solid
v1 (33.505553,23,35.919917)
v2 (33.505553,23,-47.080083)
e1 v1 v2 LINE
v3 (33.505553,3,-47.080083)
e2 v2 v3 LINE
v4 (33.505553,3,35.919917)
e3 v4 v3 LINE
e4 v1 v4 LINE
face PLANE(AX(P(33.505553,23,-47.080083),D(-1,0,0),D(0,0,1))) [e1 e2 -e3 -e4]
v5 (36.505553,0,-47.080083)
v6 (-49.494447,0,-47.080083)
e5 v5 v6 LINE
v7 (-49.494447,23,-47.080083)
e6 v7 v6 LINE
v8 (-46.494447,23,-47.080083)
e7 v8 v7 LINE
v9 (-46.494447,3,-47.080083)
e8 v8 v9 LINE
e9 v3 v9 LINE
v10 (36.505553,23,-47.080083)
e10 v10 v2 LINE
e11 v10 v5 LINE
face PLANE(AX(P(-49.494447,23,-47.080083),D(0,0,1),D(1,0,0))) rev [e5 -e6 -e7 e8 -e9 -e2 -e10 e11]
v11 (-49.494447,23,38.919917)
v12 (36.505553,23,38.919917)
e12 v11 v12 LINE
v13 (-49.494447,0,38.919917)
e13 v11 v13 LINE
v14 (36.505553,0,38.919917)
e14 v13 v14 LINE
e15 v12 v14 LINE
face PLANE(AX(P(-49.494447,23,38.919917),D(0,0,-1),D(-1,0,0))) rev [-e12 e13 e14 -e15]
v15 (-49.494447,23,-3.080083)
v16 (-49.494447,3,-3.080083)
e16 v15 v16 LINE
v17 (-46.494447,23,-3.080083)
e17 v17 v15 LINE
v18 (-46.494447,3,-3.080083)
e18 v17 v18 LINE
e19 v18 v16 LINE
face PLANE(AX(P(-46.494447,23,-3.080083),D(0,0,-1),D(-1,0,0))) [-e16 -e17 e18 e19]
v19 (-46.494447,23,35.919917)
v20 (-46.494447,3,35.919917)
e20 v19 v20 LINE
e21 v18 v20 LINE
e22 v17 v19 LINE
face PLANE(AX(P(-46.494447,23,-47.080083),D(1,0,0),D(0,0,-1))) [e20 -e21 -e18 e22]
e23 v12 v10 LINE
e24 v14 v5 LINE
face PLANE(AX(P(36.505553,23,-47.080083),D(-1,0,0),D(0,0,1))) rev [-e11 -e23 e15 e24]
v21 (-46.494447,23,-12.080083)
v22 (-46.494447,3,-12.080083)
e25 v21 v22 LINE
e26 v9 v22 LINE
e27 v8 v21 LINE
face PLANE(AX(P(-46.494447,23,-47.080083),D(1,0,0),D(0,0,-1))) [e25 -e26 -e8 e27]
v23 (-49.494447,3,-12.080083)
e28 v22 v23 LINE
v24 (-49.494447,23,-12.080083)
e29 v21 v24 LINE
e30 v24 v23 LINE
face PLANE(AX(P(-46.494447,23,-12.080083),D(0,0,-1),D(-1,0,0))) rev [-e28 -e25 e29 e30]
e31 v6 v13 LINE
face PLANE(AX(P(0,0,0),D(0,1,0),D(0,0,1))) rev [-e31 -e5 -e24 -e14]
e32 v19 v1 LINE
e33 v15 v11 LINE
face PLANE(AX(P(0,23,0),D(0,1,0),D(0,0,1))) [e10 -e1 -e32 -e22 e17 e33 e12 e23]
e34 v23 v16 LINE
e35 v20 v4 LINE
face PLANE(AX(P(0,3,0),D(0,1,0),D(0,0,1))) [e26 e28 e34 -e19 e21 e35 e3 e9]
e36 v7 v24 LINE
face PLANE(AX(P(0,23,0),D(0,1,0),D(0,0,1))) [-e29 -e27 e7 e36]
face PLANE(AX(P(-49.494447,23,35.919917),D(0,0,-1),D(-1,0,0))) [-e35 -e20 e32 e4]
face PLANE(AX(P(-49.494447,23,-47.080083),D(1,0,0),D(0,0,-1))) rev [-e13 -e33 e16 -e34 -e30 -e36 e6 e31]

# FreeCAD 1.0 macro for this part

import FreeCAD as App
import Part
import Sketcher
from FreeCAD import Vector
Q = App.Units.Quantity


def faces_at(feature, points):
    """Names of the faces that lie closest to the given points."""
    faces = feature.Shape.Faces
    near = lambda p: min(range(len(faces)), key=lambda i: faces[i].distToShape(Part.Vertex(*p))[0])
    return sorted({f"Face{near(p) + 1}" for p in points})


def add_polygon(sketch, points):
    """Adds a closed chain of lines whose ends are joined by coincident constraints."""
    first, n = sketch.GeometryCount, len(points)
    for a, b in zip(points, points[1:] + points[:1]):
        sketch.addGeometry(Part.LineSegment(App.Vector(*a, 0), App.Vector(*b, 0)), False)
    for i in range(n):
        sketch.addConstraint(Sketcher.Constraint("Coincident", first + i, 2, first + (i + 1) % n, 1))

doc = App.newDocument("Part")
params = doc.addObject("Spreadsheet::Sheet", "Params")
for row, (alias, value) in enumerate([
    ("sketch1_width", "86 mm"),
    ("pad1_length", "23 mm"),
    ("thickness_wall", "3 mm"),
    ("sketch2_width", "20 mm"),
    ("sketch2_height", "9 mm"),
    ("pocket1_length", "3 mm"),
], start=1):
    params.set(f"A{row}", alias)
    params.set(f"B{row}", "=" + value)
    params.setAlias(f"B{row}", alias)

body = doc.addObject("PartDesign::Body", "Body")

# Sketch on XZ plane
sketch1 = body.newObject("Sketcher::SketchObject", "Sketch")
sketch1.AttachmentSupport = (doc.getObject("XZ_Plane"), [""])
sketch1.MapMode = "FlatFace"
add_polygon(sketch1, [(-49.494447, -47.080083), (-49.494447, 38.919917), (36.505553, 38.919917), (36.505553, -47.080083)])  # lines 0-3
sketch1.addConstraint([
    Sketcher.Constraint("Vertical", 0),
    Sketcher.Constraint("Horizontal", 1),
    Sketcher.Constraint("Vertical", 2),
    Sketcher.Constraint("Horizontal", 3),
    Sketcher.Constraint("Equal", 3, 0),
    Sketcher.Constraint("DistanceX", 1, 1, 1, 2, Q("86 mm")),
    Sketcher.Constraint("DistanceX", 0, 2, -1, 1, Q("49.494447 mm")),
    Sketcher.Constraint("DistanceY", -1, 1, 0, 2, Q("38.919917 mm")),
])
sketch1.setExpression("Constraints[9]", "Params.sketch1_width")
pad1 = body.newObject("PartDesign::Pad", "Pad")
pad1.Profile = sketch1
pad1.setExpression("Length", "Params.pad1_length")
pad1.Reversed = True
doc.recompute()

thickness = body.newObject("PartDesign::Thickness", "Thickness")
thickness.Base = (pad1, faces_at(pad1, [(-6.494, 23, -4.08), (-6.494, 11.5, -47.08)]))
thickness.setExpression("Value", "Params.thickness_wall")
thickness.Reversed = True
thickness.Join = "Intersection"

# Sketch on YZ plane
sketch2 = body.newObject("Sketcher::SketchObject", "Sketch001")
sketch2.AttachmentSupport = (doc.getObject("YZ_Plane"), [""])
sketch2.MapMode = "FlatFace"
sketch2.AttachmentOffset = App.Placement(Vector(0, 0, -49.494447), App.Rotation())
add_polygon(sketch2, [(23, -12.080083), (3, -12.080083), (3, -3.080083), (23, -3.080083)])  # lines 0-3
sketch2.addConstraint([
    Sketcher.Constraint("Horizontal", 0),
    Sketcher.Constraint("Vertical", 1),
    Sketcher.Constraint("Horizontal", 2),
    Sketcher.Constraint("Vertical", 3),
    Sketcher.Constraint("DistanceX", 0, 2, 0, 1, Q("20 mm")),
    Sketcher.Constraint("DistanceY", 1, 1, 1, 2, Q("9 mm")),
    Sketcher.Constraint("DistanceX", -1, 1, 0, 2, Q("3 mm")),
    Sketcher.Constraint("DistanceY", 0, 2, -1, 1, Q("12.080083 mm")),
])
sketch2.setExpression("Constraints[8]", "Params.sketch2_width")
sketch2.setExpression("Constraints[9]", "Params.sketch2_height")
pocket1 = body.newObject("PartDesign::Pocket", "Pocket")
pocket1.Profile = sketch2
pocket1.setExpression("Length", "Params.pocket1_length")
pocket1.Reversed = True

doc.recompute()
